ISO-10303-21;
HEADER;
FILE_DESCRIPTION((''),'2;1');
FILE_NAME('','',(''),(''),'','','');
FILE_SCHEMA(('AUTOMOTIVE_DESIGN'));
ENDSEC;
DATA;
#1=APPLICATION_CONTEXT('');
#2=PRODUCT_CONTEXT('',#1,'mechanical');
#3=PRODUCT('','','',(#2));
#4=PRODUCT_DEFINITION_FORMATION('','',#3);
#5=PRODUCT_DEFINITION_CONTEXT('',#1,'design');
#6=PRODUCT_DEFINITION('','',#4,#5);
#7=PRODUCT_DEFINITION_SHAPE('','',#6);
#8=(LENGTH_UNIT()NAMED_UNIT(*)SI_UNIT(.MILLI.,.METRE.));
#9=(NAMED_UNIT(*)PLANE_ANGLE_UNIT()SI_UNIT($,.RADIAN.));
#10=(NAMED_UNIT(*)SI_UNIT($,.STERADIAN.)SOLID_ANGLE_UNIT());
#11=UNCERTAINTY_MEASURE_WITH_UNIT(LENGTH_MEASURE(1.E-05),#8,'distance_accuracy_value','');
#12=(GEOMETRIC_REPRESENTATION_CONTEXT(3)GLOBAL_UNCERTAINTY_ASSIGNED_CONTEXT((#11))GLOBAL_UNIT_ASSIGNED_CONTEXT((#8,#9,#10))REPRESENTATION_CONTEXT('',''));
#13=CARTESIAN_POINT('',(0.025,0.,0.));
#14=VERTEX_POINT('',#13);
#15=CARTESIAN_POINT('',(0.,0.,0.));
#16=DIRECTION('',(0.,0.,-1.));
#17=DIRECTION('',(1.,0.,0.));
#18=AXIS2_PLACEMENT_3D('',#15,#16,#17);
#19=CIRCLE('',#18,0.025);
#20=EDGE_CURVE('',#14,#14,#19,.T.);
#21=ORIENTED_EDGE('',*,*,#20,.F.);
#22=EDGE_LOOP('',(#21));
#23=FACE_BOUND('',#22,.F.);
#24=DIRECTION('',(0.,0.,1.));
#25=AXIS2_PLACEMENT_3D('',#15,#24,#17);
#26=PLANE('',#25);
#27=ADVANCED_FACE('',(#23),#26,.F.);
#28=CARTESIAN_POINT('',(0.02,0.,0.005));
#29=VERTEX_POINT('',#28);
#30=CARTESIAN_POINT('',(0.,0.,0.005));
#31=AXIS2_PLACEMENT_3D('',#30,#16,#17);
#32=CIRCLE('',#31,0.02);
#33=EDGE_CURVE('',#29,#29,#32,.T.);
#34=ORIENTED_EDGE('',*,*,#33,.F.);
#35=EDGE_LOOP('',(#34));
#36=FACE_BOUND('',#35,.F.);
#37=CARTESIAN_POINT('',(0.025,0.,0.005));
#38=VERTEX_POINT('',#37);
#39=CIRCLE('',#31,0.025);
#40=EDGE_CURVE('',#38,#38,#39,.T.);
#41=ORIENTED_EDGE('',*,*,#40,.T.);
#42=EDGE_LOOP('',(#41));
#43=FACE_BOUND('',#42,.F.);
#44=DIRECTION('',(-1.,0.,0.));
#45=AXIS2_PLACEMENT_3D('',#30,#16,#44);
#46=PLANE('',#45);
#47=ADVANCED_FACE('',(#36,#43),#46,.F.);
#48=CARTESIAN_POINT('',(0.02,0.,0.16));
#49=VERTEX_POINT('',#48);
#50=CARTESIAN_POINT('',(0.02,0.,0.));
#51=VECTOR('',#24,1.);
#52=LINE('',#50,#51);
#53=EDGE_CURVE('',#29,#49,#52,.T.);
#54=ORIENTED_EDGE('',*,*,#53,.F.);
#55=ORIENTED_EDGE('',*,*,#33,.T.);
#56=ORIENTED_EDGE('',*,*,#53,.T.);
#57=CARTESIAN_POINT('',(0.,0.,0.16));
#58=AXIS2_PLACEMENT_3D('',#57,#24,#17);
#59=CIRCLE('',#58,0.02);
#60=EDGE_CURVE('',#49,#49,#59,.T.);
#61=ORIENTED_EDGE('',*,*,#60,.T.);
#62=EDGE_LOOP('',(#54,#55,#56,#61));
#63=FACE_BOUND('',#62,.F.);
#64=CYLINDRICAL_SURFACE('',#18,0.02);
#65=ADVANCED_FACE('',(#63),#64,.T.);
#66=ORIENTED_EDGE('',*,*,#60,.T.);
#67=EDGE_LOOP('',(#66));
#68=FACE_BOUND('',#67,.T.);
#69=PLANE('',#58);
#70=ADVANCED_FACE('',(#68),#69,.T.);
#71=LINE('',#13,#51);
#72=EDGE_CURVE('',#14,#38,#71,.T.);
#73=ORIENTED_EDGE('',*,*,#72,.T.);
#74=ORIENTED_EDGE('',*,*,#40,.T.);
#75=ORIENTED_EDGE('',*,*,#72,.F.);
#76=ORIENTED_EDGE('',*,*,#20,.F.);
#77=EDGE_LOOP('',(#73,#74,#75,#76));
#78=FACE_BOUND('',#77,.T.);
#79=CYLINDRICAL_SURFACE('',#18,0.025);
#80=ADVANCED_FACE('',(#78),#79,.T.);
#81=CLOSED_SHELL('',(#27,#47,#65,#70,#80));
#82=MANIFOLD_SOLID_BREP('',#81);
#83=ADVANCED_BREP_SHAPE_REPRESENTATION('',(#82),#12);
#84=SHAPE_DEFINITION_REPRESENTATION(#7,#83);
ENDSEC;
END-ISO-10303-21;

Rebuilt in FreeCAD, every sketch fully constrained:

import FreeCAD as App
import Part
import Sketcher
from FreeCAD import Vector

doc = App.newDocument("Part")
body = doc.addObject("PartDesign::Body", "Body")

sketch1 = body.newObject("Sketcher::SketchObject", "Sketch")
sketch1.AttachmentSupport = (doc.getObject("XY_Plane"), [""])
sketch1.MapMode = "FlatFace"
sketch1.addGeometry(Part.Circle(Vector(0, 0, 0), Vector(0, 0, 1), 0.02), False)
sketch1.addConstraint([
    Sketcher.Constraint("Coincident", 0, 3, -1, 1),
    Sketcher.Constraint("Diameter", 0, 0.04),
])
pad1 = body.newObject("PartDesign::Pad", "Pad")
pad1.Profile = sketch1
pad1.Length = 0.16

sketch2 = body.newObject("Sketcher::SketchObject", "Sketch001")
sketch2.AttachmentSupport = (doc.getObject("XY_Plane"), [""])
sketch2.MapMode = "FlatFace"
sketch2.addGeometry(Part.Circle(Vector(0, 0, 0), Vector(0, 0, 1), 0.025), False)
sketch2.addConstraint([
    Sketcher.Constraint("Coincident", 0, 3, -1, 1),
    Sketcher.Constraint("Diameter", 0, 0.05),
])
pad2 = body.newObject("PartDesign::Pad", "Pad001")
pad2.Profile = sketch2
pad2.Length = 0.005

doc.recompute()
